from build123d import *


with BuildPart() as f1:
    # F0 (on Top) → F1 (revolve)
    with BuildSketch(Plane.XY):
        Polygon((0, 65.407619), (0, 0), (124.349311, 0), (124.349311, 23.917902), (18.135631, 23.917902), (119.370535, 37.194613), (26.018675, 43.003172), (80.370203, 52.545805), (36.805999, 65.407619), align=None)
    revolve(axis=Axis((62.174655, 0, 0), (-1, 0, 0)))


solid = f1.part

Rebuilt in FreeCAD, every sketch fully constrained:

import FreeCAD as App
import Part
import Sketcher

doc = App.newDocument("Part")
body = doc.addObject("PartDesign::Body", "Body")

# Sketch on XY plane
sketch1 = body.newObject("Sketcher::SketchObject", "Sketch")
sketch1.AttachmentSupport = (doc.getObject("XY_Plane"), [""])
sketch1.MapMode = "FlatFace"
sketch1.addGeometry(Part.LineSegment(App.Vector(0, 65, 0), App.Vector(0, 0, 0)), False)
sketch1.addGeometry(Part.LineSegment(App.Vector(0, 0, 0), App.Vector(124, 0, 0)), False)
sketch1.addGeometry(Part.LineSegment(App.Vector(124, 0, 0), App.Vector(124, 24, 0)), False)
sketch1.addGeometry(Part.LineSegment(App.Vector(124, 24, 0), App.Vector(18, 24, 0)), False)
sketch1.addGeometry(Part.LineSegment(App.Vector(18, 24, 0), App.Vector(119, 37, 0)), False)
sketch1.addGeometry(Part.LineSegment(App.Vector(119, 37, 0), App.Vector(26, 43, 0)), False)
sketch1.addGeometry(Part.LineSegment(App.Vector(26, 43, 0), App.Vector(80, 53, 0)), False)
sketch1.addGeometry(Part.LineSegment(App.Vector(80, 53, 0), App.Vector(37, 65, 0)), False)
sketch1.addGeometry(Part.LineSegment(App.Vector(37, 65, 0), App.Vector(0, 65, 0)), False)
sketch1.addConstraint(Sketcher.Constraint("Coincident", 0, 2, 1, 1))
sketch1.addConstraint(Sketcher.Constraint("Coincident", 1, 2, 2, 1))
sketch1.addConstraint(Sketcher.Constraint("Coincident", 2, 2, 3, 1))
sketch1.addConstraint(Sketcher.Constraint("Coincident", 3, 2, 4, 1))
sketch1.addConstraint(Sketcher.Constraint("Coincident", 4, 2, 5, 1))
sketch1.addConstraint(Sketcher.Constraint("Coincident", 5, 2, 6, 1))
sketch1.addConstraint(Sketcher.Constraint("Coincident", 6, 2, 7, 1))
sketch1.addConstraint(Sketcher.Constraint("Coincident", 7, 2, 8, 1))
sketch1.addConstraint(Sketcher.Constraint("Coincident", 8, 2, 0, 1))
sketch1.addConstraint(Sketcher.Constraint("Vertical", 0))
sketch1.addConstraint(Sketcher.Constraint("Horizontal", 1))
sketch1.addConstraint(Sketcher.Constraint("Vertical", 2))
sketch1.addConstraint(Sketcher.Constraint("Horizontal", 3))
sketch1.addConstraint(Sketcher.Constraint("Horizontal", 8))
sketch1.addConstraint(Sketcher.Constraint("Coincident", 0, 2, -1, 1))
sketch1.addConstraint(Sketcher.Constraint("DistanceX", 8, 2, 8, 1, 36.805999))
sketch1.addConstraint(Sketcher.Constraint("DistanceX", 1, 1, 1, 2, 124.349311))
sketch1.addConstraint(Sketcher.Constraint("DistanceX", 3, 2, 3, 1, 106.21368))
sketch1.addConstraint(Sketcher.Constraint("DistanceY", 0, 2, 0, 1, 65.407619))
sketch1.addConstraint(Sketcher.Constraint("Distance", 6, 55.182882))
sketch1.addConstraint(Sketcher.Constraint("Distance", 7, 45.423189))
sketch1.addConstraint(Sketcher.Constraint("DistanceY", 2, 1, 2, 2, 23.917902))
sketch1.addConstraint(Sketcher.Constraint("DistanceY", 2, 2, 4, 2, 13.276711))
sketch1.addConstraint(Sketcher.Constraint("DistanceY", 3, 2, 5, 2, 19.08527))
sketch1.addConstraint(Sketcher.Constraint("DistanceX", 5, 2, 4, 2, 93.35186))
sketch1.addConstraint(Sketcher.Constraint("DistanceX", 5, 2, 6, 2, 54.351528))
revolution = body.newObject("PartDesign::Revolution", "Revolution")
revolution.Profile = sketch1
revolution.ReferenceAxis = (sketch1, ["H_Axis"])
revolution.Angle = 360

doc.recompute()
